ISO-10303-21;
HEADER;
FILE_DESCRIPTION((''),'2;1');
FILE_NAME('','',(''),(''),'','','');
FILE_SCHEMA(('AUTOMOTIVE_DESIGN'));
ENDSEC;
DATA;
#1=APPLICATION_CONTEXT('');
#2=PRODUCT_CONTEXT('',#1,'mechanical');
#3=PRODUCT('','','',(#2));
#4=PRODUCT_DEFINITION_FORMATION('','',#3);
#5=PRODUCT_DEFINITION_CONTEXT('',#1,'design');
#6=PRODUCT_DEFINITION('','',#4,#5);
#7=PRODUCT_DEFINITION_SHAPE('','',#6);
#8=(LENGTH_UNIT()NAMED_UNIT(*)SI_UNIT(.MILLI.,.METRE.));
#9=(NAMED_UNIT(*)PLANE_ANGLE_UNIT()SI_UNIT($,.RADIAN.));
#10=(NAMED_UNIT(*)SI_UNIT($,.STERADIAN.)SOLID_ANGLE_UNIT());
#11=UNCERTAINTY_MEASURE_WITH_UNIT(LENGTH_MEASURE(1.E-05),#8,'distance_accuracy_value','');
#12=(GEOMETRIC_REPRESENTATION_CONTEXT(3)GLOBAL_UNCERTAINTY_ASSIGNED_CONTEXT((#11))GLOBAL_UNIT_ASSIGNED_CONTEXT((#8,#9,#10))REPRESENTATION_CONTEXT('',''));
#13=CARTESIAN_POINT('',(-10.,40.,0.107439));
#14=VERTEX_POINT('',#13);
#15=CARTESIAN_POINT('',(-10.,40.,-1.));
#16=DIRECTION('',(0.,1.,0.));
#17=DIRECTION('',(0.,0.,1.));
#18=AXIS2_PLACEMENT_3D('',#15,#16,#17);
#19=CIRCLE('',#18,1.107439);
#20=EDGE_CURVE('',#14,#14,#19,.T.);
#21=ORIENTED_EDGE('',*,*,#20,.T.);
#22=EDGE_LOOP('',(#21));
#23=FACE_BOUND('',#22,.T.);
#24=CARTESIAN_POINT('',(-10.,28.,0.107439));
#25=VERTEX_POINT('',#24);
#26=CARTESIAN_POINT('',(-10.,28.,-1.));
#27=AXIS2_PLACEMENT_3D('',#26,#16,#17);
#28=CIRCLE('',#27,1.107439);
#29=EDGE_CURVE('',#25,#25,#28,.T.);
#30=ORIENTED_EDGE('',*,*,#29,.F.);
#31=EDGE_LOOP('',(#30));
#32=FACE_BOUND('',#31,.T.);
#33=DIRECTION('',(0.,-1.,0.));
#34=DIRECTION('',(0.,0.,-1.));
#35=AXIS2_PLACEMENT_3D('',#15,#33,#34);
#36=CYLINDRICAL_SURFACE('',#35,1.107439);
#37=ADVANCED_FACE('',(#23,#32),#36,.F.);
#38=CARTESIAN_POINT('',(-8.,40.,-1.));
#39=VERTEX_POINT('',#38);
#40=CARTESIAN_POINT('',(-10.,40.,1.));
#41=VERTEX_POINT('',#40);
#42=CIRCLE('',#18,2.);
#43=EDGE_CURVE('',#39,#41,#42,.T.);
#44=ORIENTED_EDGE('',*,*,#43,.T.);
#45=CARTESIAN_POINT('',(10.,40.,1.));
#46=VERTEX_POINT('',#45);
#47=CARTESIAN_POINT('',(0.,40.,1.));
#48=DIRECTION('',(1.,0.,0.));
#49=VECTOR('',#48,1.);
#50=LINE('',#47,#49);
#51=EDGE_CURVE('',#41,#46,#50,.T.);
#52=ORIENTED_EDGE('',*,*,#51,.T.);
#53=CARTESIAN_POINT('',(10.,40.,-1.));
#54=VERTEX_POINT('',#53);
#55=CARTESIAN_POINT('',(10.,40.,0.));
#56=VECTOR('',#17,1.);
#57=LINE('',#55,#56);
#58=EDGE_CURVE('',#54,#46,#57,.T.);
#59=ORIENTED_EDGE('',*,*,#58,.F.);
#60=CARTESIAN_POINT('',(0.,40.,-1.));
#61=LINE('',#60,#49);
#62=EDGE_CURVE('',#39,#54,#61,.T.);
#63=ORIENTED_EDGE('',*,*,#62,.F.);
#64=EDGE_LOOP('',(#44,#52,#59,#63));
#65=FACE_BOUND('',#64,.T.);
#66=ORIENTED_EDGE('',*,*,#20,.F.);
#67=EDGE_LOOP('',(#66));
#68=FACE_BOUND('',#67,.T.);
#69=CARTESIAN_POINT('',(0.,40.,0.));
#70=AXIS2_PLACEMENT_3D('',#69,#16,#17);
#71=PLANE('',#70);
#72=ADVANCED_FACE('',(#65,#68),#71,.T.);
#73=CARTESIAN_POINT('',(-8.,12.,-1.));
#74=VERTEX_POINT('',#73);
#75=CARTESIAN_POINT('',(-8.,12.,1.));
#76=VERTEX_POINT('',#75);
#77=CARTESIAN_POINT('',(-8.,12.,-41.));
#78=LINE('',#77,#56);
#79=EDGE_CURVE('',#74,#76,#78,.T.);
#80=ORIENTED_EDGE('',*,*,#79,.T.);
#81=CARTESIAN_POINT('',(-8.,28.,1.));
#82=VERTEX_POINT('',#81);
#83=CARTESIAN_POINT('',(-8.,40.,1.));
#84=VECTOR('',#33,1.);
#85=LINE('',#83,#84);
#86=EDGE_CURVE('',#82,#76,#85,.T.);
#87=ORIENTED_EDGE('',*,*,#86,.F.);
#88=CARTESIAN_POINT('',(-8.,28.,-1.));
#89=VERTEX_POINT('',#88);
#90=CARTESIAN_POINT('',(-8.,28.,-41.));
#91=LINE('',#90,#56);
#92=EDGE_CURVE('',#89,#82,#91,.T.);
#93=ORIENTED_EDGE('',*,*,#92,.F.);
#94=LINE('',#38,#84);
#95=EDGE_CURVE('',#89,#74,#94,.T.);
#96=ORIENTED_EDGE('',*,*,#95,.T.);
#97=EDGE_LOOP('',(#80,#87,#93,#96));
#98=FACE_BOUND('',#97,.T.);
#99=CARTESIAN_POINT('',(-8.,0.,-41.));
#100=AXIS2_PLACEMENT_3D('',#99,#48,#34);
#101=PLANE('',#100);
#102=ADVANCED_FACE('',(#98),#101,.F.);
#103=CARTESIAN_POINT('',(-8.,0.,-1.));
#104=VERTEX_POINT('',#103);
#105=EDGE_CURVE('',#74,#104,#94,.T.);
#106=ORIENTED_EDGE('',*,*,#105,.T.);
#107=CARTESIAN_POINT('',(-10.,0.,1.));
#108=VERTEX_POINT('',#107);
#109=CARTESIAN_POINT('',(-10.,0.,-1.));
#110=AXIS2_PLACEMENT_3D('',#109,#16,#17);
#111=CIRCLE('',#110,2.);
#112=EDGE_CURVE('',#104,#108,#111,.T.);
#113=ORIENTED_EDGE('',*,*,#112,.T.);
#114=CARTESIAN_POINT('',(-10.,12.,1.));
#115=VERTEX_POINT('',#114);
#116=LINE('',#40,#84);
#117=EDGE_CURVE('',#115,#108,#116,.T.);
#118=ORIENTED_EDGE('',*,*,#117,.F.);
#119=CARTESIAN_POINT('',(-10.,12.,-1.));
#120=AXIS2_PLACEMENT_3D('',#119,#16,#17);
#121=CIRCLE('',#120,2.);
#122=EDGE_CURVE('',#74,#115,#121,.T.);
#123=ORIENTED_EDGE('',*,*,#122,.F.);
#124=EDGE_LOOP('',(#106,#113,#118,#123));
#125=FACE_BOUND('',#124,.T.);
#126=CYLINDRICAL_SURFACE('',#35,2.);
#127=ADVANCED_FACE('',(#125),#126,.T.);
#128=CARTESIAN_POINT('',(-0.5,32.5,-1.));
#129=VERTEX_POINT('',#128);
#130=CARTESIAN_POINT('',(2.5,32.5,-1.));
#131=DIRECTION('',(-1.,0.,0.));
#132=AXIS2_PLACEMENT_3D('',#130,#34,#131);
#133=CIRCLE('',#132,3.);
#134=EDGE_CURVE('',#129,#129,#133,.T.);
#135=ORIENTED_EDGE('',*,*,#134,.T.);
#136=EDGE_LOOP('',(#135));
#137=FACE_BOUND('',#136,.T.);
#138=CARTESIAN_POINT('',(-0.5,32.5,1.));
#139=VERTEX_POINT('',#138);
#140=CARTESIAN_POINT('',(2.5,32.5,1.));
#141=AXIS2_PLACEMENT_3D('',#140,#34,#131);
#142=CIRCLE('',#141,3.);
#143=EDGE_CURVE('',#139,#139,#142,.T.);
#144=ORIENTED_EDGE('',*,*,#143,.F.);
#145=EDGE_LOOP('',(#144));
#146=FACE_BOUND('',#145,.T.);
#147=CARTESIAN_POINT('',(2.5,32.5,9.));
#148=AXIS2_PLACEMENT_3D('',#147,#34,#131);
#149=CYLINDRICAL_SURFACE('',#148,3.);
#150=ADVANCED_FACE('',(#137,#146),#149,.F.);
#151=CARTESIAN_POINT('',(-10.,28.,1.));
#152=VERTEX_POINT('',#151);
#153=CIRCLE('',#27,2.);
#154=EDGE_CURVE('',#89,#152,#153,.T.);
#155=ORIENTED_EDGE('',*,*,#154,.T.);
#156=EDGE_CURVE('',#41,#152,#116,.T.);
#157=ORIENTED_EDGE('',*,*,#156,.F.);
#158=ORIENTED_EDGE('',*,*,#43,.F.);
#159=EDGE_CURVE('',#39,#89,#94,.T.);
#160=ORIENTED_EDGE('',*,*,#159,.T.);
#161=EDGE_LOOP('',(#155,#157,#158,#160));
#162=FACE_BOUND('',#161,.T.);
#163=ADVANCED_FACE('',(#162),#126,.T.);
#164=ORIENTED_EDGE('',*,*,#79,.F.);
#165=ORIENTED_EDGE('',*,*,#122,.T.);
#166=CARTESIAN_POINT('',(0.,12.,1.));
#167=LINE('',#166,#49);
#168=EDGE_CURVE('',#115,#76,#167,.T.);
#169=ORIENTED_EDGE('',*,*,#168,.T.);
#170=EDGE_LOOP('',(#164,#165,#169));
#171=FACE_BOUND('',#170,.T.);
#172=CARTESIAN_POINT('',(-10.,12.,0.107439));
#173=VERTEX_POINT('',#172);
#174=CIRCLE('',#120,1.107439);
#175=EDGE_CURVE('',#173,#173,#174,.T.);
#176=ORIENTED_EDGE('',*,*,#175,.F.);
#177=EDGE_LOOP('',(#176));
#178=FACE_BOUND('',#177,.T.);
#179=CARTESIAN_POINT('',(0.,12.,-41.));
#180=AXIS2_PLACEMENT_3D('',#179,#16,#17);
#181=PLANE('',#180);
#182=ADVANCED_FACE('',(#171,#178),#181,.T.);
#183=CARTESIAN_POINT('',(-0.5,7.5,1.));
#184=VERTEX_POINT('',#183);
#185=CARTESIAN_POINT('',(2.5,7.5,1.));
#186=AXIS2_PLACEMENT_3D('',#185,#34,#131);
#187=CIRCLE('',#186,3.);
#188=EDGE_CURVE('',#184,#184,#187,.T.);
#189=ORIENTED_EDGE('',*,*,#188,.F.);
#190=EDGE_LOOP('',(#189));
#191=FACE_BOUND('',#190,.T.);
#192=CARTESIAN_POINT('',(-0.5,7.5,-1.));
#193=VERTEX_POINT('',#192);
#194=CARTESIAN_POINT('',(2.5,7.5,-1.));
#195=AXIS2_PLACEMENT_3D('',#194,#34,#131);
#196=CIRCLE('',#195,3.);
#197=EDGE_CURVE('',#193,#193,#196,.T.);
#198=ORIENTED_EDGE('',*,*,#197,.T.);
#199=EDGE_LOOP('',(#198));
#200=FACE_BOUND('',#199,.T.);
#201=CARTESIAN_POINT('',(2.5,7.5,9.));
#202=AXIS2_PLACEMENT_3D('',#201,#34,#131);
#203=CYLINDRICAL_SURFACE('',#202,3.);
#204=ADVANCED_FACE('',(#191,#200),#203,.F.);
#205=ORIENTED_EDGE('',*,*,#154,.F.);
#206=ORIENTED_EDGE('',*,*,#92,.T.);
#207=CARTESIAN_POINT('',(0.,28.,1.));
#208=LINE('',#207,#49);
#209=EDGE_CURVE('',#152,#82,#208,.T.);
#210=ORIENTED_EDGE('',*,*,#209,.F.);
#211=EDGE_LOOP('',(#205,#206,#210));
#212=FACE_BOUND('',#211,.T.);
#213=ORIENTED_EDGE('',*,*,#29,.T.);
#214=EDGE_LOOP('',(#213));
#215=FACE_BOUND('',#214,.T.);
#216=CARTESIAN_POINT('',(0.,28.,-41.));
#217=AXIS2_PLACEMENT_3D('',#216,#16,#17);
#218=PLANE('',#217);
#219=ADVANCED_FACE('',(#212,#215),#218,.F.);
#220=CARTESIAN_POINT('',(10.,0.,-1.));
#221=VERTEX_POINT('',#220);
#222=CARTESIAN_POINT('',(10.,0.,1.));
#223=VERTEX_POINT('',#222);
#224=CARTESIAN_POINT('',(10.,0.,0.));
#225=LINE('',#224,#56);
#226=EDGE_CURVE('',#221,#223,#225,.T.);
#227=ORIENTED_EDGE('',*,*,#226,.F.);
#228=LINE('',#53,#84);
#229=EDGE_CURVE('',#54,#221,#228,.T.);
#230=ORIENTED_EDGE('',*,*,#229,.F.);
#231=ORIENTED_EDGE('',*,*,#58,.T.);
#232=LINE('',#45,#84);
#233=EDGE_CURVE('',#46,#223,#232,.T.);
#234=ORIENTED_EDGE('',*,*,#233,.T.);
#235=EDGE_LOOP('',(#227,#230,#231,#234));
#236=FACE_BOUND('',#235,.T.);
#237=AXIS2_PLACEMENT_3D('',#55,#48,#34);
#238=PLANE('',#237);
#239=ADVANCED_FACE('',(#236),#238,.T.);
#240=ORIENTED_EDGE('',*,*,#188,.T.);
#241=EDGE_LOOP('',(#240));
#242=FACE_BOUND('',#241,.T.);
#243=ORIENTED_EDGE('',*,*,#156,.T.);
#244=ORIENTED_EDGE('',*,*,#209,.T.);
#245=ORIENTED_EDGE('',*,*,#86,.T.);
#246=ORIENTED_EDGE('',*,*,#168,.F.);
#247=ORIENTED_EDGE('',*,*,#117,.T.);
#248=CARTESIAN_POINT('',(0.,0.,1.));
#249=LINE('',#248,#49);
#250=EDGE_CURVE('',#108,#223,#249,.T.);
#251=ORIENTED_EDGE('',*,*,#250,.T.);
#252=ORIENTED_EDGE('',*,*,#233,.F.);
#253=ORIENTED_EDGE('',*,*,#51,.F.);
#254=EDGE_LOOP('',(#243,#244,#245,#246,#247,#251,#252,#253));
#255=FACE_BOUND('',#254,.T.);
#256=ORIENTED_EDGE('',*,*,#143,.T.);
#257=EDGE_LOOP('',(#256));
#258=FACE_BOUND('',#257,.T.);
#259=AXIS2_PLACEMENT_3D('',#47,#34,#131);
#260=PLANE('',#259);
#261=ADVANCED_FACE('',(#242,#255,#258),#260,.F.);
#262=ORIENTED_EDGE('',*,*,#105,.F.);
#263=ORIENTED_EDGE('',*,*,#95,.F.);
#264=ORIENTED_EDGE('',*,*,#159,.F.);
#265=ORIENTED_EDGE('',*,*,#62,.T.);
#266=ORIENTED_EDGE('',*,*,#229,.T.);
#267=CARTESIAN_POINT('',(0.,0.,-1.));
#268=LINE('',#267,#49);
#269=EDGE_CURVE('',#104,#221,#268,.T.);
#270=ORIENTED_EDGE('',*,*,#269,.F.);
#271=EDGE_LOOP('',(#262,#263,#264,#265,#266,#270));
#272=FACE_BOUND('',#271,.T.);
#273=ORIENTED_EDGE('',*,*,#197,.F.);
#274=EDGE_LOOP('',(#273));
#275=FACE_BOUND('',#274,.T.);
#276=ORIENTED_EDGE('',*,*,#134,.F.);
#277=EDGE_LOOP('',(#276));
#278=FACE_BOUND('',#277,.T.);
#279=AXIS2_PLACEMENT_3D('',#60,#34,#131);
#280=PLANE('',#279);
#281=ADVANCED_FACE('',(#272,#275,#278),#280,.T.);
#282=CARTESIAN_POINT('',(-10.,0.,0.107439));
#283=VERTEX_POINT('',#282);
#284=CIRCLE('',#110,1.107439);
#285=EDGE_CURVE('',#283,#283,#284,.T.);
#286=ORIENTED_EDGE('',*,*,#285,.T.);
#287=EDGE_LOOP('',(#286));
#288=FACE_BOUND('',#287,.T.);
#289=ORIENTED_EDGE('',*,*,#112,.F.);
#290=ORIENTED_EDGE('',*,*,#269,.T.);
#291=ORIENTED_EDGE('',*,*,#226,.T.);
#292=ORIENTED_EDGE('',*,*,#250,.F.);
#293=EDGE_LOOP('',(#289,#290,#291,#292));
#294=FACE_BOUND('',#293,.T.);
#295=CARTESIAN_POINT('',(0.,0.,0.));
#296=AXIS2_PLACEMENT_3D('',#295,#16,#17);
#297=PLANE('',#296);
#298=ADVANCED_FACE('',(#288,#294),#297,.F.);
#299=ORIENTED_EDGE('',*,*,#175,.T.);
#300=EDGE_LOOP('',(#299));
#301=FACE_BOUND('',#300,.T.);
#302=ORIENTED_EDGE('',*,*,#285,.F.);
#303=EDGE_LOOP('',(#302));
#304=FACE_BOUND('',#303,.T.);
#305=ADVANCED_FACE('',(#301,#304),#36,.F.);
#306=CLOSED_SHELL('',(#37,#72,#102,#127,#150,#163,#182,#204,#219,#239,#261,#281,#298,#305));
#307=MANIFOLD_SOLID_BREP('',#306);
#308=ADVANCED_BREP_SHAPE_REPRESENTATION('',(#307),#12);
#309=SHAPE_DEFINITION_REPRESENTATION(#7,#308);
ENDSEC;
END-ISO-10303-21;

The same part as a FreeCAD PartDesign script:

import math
import FreeCAD as App
import Part
import Sketcher
Q = App.Units.Quantity


def add_polygon(sketch, points):
    """Adds a closed chain of lines whose ends are joined by coincident constraints."""
    first, n = sketch.GeometryCount, len(points)
    for a, b in zip(points, points[1:] + points[:1]):
        sketch.addGeometry(Part.LineSegment(App.Vector(*a, 0), App.Vector(*b, 0)), False)
    for i in range(n):
        sketch.addConstraint(Sketcher.Constraint("Coincident", first + i, 2, first + (i + 1) % n, 1))

doc = App.newDocument("Part")
body = doc.addObject("PartDesign::Body", "Body")

# Sketch on XZ plane
sketch1 = body.newObject("Sketcher::SketchObject", "Sketch")
sketch1.AttachmentSupport = (doc.getObject("XZ_Plane"), [""])
sketch1.MapMode = "FlatFace"
sketch1.addGeometry([
    Part.ArcOfCircle(Part.Circle(App.Vector(-10, -1, 0), App.Vector(0, 0, 1), 2), math.radians(90), math.radians(360)),  # 0
    Part.LineSegment(App.Vector(-10, 1, 0), App.Vector(10, 1, 0)),  # 1
    Part.LineSegment(App.Vector(10, 1, 0), App.Vector(10, -1, 0)),  # 2
    Part.LineSegment(App.Vector(10, -1, 0), App.Vector(-8, -1, 0)),  # 3
    Part.Circle(App.Vector(-10, -1, 0), App.Vector(0, 0, 1), 1.107439),  # 4
], False)
sketch1.addConstraint([
    Sketcher.Constraint("Tangent", 0, 1, 1, 1),
    Sketcher.Constraint("Coincident", 1, 2, 2, 1),
    Sketcher.Constraint("Coincident", 2, 2, 3, 1),
    Sketcher.Constraint("Coincident", 3, 2, 0, 2),
    Sketcher.Constraint("Horizontal", 1),
    Sketcher.Constraint("Vertical", 2),
    Sketcher.Constraint("Horizontal", 3),
    Sketcher.Constraint("Coincident", 4, 3, 0, 3),
    Sketcher.Constraint("Symmetric", 0, 1, 2, 2, -1, 1),
    Sketcher.Constraint("Horizontal", 4, 3, 2, 2),
    Sketcher.Constraint("Radius", 0, Q("2 mm")),
    Sketcher.Constraint("DistanceX", 1, 1, 1, 2, Q("20 mm")),
    Sketcher.Constraint("Diameter", 4, Q("2.214878 mm")),
])
pad1 = body.newObject("PartDesign::Pad", "Pad")
pad1.Profile = sketch1
pad1.Length = 40
pad1.Reversed = True

# Sketch on XY plane
sketch2 = body.newObject("Sketcher::SketchObject", "Sketch001")
sketch2.AttachmentSupport = (doc.getObject("XY_Plane"), [""])
sketch2.MapMode = "FlatFace"
sketch2.AttachmentOffset = App.Placement(App.Vector(0, 0, -1), App.Rotation())
add_polygon(sketch2, [(-8, 28), (-8, 12), (-12, 12), (-12, 28)])  # lines 0-3
sketch2.addConstraint([
    Sketcher.Constraint("Vertical", 0),
    Sketcher.Constraint("Horizontal", 1),
    Sketcher.Constraint("Vertical", 2),
    Sketcher.Constraint("Horizontal", 3),
    Sketcher.Constraint("DistanceX", 1, 2, 1, 1, Q("4 mm")),
    Sketcher.Constraint("DistanceY", 0, 2, 0, 1, Q("16 mm")),
    Sketcher.Constraint("DistanceX", 0, 2, -1, 1, Q("8 mm")),
    Sketcher.Constraint("DistanceY", -1, 1, 0, 2, Q("12 mm")),
])
pocket1 = body.newObject("PartDesign::Pocket", "Pocket")
pocket1.Profile = sketch2
pocket1.Type = "ThroughAll"
pocket1.Midplane = True

# Sketch on XY plane
sketch3 = body.newObject("Sketcher::SketchObject", "Sketch002")
sketch3.AttachmentSupport = (doc.getObject("XY_Plane"), [""])
sketch3.MapMode = "FlatFace"
sketch3.AttachmentOffset = App.Placement(App.Vector(0, 0, -1), App.Rotation())
sketch3.addGeometry([
    Part.ArcOfCircle(Part.Circle(App.Vector(2.5, 32.5, 0), App.Vector(0, 0, 1), 3), math.radians(90), math.radians(180)),  # 0
    Part.ArcOfCircle(Part.Circle(App.Vector(2.5, 32.5, 0), App.Vector(0, 0, 1), 3), math.radians(0), math.radians(90)),  # 1
    Part.ArcOfCircle(Part.Circle(App.Vector(2.5, 32.5, 0), App.Vector(0, 0, 1), 3), math.radians(180), math.radians(360)),  # 2
    Part.ArcOfCircle(Part.Circle(App.Vector(2.5, 7.5, 0), App.Vector(0, 0, 1), 3), math.radians(-90), math.radians(0)),  # 3
    Part.ArcOfCircle(Part.Circle(App.Vector(2.5, 7.5, 0), App.Vector(0, 0, 1), 3), math.radians(180), math.radians(270)),  # 4
    Part.ArcOfCircle(Part.Circle(App.Vector(2.5, 7.5, 0), App.Vector(0, 0, 1), 3), math.radians(0), math.radians(180)),  # 5
], False)
sketch3.addConstraint([
    Sketcher.Constraint("Tangent", 0, 1, 1, 2),
    Sketcher.Constraint("Tangent", 1, 1, 2, 2),
    Sketcher.Constraint("Tangent", 2, 1, 0, 2),
    Sketcher.Constraint("Tangent", 3, 1, 4, 2),
    Sketcher.Constraint("Tangent", 4, 1, 5, 2),
    Sketcher.Constraint("Tangent", 5, 1, 3, 2),
    Sketcher.Constraint("Equal", 2, 3),
    Sketcher.Constraint("Horizontal", 2, 3, 1, 1),
    Sketcher.Constraint("Horizontal", 1, 1, 2, 1),
    Sketcher.Constraint("Horizontal", 5, 3, 4, 1),
    Sketcher.Constraint("Horizontal", 4, 1, 5, 1),
    Sketcher.Constraint("Vertical", 2, 3, 3, 3),
    Sketcher.Constraint("Vertical", 5, 3, 0, 1),
    Sketcher.Constraint("Vertical", 0, 1, 3, 1),
    Sketcher.Constraint("Radius", 0, Q("3 mm")),
    Sketcher.Constraint("DistanceY", 3, 3, 2, 3, Q("25 mm")),
    Sketcher.Constraint("DistanceX", -1, 1, 0, 3, Q("2.5 mm")),
    Sketcher.Constraint("DistanceY", -1, 1, 0, 3, Q("32.5 mm")),
])
pocket2 = body.newObject("PartDesign::Pocket", "Pocket001")
pocket2.Profile = sketch3
pocket2.Length = 10
pocket2.Reversed = True

doc.recompute()
